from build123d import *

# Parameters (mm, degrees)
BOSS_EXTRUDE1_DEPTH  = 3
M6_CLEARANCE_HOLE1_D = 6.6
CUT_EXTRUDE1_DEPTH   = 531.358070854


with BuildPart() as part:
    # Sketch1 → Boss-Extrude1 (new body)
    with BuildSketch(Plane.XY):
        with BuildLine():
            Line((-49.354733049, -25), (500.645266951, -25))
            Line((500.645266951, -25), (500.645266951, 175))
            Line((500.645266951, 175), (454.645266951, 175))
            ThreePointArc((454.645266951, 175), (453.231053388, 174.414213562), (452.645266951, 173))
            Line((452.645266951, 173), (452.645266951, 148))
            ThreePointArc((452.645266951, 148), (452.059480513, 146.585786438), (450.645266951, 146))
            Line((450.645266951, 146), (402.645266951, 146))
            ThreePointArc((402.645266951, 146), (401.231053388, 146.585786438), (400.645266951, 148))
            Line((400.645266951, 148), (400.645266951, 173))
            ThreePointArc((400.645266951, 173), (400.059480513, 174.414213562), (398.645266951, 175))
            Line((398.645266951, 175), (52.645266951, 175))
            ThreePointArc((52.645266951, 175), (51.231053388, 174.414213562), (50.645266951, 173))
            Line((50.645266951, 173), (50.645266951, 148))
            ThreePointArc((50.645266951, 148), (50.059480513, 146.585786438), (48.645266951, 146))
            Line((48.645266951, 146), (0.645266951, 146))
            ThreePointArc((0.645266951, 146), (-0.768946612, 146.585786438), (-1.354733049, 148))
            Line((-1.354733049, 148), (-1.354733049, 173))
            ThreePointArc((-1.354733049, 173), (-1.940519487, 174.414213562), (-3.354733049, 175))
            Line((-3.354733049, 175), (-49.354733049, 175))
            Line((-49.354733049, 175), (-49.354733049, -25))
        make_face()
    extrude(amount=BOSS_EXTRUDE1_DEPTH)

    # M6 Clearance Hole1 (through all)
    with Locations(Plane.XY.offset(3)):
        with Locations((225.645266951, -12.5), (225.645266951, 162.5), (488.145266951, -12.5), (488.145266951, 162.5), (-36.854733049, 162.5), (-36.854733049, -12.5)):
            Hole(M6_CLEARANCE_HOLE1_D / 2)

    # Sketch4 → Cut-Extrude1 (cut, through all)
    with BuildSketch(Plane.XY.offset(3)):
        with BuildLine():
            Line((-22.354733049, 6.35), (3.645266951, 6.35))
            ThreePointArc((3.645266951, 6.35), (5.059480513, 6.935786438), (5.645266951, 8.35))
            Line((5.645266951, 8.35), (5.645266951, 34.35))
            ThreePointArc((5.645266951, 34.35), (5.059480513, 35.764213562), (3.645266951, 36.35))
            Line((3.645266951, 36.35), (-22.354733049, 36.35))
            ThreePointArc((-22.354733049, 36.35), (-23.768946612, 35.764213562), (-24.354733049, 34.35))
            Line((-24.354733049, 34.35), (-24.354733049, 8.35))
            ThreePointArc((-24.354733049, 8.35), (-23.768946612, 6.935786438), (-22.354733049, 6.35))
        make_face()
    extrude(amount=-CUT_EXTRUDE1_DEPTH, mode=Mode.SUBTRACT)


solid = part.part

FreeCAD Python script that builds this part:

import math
import FreeCAD as App
import Part
import Sketcher

V = App.Vector
Q = App.Units.Quantity

doc = App.newDocument("Part")
body = doc.addObject("PartDesign::Body", "Body")

# Sketch on XY plane
sketch1 = body.newObject("Sketcher::SketchObject", "Sketch")
sketch1.AttachmentSupport = (doc.getObject("XY_Plane"), [""])
sketch1.MapMode = "FlatFace"
sketch1.addGeometry([
    Part.LineSegment(V(-49.354733, -25, 0), V(500.645267, -25, 0)),  # 0
    Part.LineSegment(V(500.645267, -25, 0), V(500.645267, 175, 0)),  # 1
    Part.LineSegment(V(500.645267, 175, 0), V(454.645267, 175, 0)),  # 2
    Part.ArcOfCircle(Part.Circle(V(454.645267, 173, 0), V(0, 0, 1), 2), math.radians(90), math.radians(180)),  # 3
    Part.LineSegment(V(452.645267, 173, 0), V(452.645267, 148, 0)),  # 4
    Part.ArcOfCircle(Part.Circle(V(450.645267, 148, 0), V(0, 0, 1), 2), math.radians(-90), math.radians(0)),  # 5
    Part.LineSegment(V(450.645267, 146, 0), V(402.645267, 146, 0)),  # 6
    Part.ArcOfCircle(Part.Circle(V(402.645267, 148, 0), V(0, 0, 1), 2), math.radians(180), math.radians(270)),  # 7
    Part.LineSegment(V(400.645267, 148, 0), V(400.645267, 173, 0)),  # 8
    Part.ArcOfCircle(Part.Circle(V(398.645267, 173, 0), V(0, 0, 1), 2), math.radians(0), math.radians(90)),  # 9
    Part.LineSegment(V(398.645267, 175, 0), V(52.645267, 175, 0)),  # 10
    Part.ArcOfCircle(Part.Circle(V(52.645267, 173, 0), V(0, 0, 1), 2), math.radians(90), math.radians(180)),  # 11
    Part.LineSegment(V(50.645267, 173, 0), V(50.645267, 148, 0)),  # 12
    Part.ArcOfCircle(Part.Circle(V(48.645267, 148, 0), V(0, 0, 1), 2), math.radians(-90), math.radians(0)),  # 13
    Part.LineSegment(V(48.645267, 146, 0), V(0.645267, 146, 0)),  # 14
    Part.ArcOfCircle(Part.Circle(V(0.645267, 148, 0), V(0, 0, 1), 2), math.radians(180), math.radians(270)),  # 15
    Part.LineSegment(V(-1.354733, 148, 0), V(-1.354733, 173, 0)),  # 16
    Part.ArcOfCircle(Part.Circle(V(-3.354733, 173, 0), V(0, 0, 1), 2), math.radians(0), math.radians(90)),  # 17
    Part.LineSegment(V(-3.354733, 175, 0), V(-49.354733, 175, 0)),  # 18
    Part.LineSegment(V(-49.354733, 175, 0), V(-49.354733, -25, 0)),  # 19
], False)
sketch1.addConstraint([
    Sketcher.Constraint("Coincident", 0, 2, 1, 1),
    Sketcher.Constraint("Coincident", 1, 2, 2, 1),
    Sketcher.Constraint("Tangent", 2, 2, 3, 1),
    Sketcher.Constraint("Tangent", 3, 2, 4, 1),
    Sketcher.Constraint("Tangent", 4, 2, 5, 2),
    Sketcher.Constraint("Tangent", 5, 1, 6, 1),
    Sketcher.Constraint("Tangent", 6, 2, 7, 2),
    Sketcher.Constraint("Tangent", 7, 1, 8, 1),
    Sketcher.Constraint("Tangent", 8, 2, 9, 1),
    Sketcher.Constraint("Tangent", 9, 2, 10, 1),
    Sketcher.Constraint("Tangent", 10, 2, 11, 1),
    Sketcher.Constraint("Tangent", 11, 2, 12, 1),
    Sketcher.Constraint("Tangent", 12, 2, 13, 2),
    Sketcher.Constraint("Tangent", 13, 1, 14, 1),
    Sketcher.Constraint("Tangent", 14, 2, 15, 2),
    Sketcher.Constraint("Tangent", 15, 1, 16, 1),
    Sketcher.Constraint("Tangent", 16, 2, 17, 1),
    Sketcher.Constraint("Tangent", 17, 2, 18, 1),
    Sketcher.Constraint("Coincident", 18, 2, 19, 1),
    Sketcher.Constraint("Coincident", 19, 2, 0, 1),
    Sketcher.Constraint("Horizontal", 0),
    Sketcher.Constraint("Vertical", 1),
    Sketcher.Constraint("Horizontal", 2),
    Sketcher.Constraint("Vertical", 4),
    Sketcher.Constraint("Horizontal", 6),
    Sketcher.Constraint("Vertical", 8),
    Sketcher.Constraint("Horizontal", 10),
    Sketcher.Constraint("Vertical", 12),
    Sketcher.Constraint("Horizontal", 14),
    Sketcher.Constraint("Vertical", 16),
    Sketcher.Constraint("Horizontal", 18),
    Sketcher.Constraint("Vertical", 19),
    Sketcher.Constraint("Equal", 3, 5),
    Sketcher.Constraint("Equal", 5, 7),
    Sketcher.Constraint("Equal", 7, 9),
    Sketcher.Constraint("Equal", 9, 11),
    Sketcher.Constraint("Equal", 11, 13),
    Sketcher.Constraint("Equal", 13, 15),
    Sketcher.Constraint("Equal", 15, 17),
    Sketcher.Constraint("Horizontal", 3, 3, 9, 3),
    Sketcher.Constraint("Horizontal", 7, 3, 13, 3),
    Sketcher.Constraint("Horizontal", 11, 3, 17, 3),
    Sketcher.Constraint("Equal", 6, 14),
    Sketcher.Constraint("Equal", 2, 18),
    Sketcher.Constraint("Radius", 3, Q("2 mm")),
    Sketcher.Constraint("DistanceX", 0, 1, 0, 2, Q("550 mm")),
    Sketcher.Constraint("DistanceX", 2, 2, 2, 1, Q("46 mm")),
    Sketcher.Constraint("DistanceX", 6, 2, 6, 1, Q("48 mm")),
    Sketcher.Constraint("DistanceY", 1, 1, 1, 2, Q("200 mm")),
    Sketcher.Constraint("DistanceY", 4, 2, 4, 1, Q("25 mm")),
    Sketcher.Constraint("DistanceY", -1, 1, 3, 3, Q("173 mm")),
    Sketcher.Constraint("DistanceX", -1, 1, 3, 3, Q("454.645267 mm")),
])
pad1 = body.newObject("PartDesign::Pad", "Pad")
pad1.Profile = sketch1
pad1.Length = 3

# Sketch on XY plane
sketch2 = body.newObject("Sketcher::SketchObject", "Sketch001")
sketch2.AttachmentSupport = (doc.getObject("XY_Plane"), [""])
sketch2.MapMode = "FlatFace"
sketch2.AttachmentOffset = App.Placement(V(0, 0, 3), App.Rotation())
sketch2.addGeometry([
    Part.Circle(V(225.645267, -12.5, 0), V(0, 0, 1), 3.3),  # 0
    Part.Circle(V(225.645267, 162.5, 0), V(0, 0, 1), 3.3),  # 1
    Part.Circle(V(488.145267, -12.5, 0), V(0, 0, 1), 3.3),  # 2
    Part.Circle(V(488.145267, 162.5, 0), V(0, 0, 1), 3.3),  # 3
    Part.Circle(V(-36.854733, 162.5, 0), V(0, 0, 1), 3.3),  # 4
    Part.Circle(V(-36.854733, -12.5, 0), V(0, 0, 1), 3.3),  # 5
], False)
sketch2.addConstraint([
    Sketcher.Constraint("Equal", 0, 1),
    Sketcher.Constraint("Equal", 1, 2),
    Sketcher.Constraint("Equal", 2, 3),
    Sketcher.Constraint("Equal", 3, 4),
    Sketcher.Constraint("Equal", 4, 5),
    Sketcher.Constraint("Horizontal", 0, 3, 2, 3),
    Sketcher.Constraint("Horizontal", 1, 3, 3, 3),
    Sketcher.Constraint("Horizontal", 3, 3, 4, 3),
    Sketcher.Constraint("Horizontal", 2, 3, 5, 3),
    Sketcher.Constraint("Vertical", 0, 3, 1, 3),
    Sketcher.Constraint("Vertical", 2, 3, 3, 3),
    Sketcher.Constraint("Vertical", 4, 3, 5, 3),
    Sketcher.Constraint("Diameter", 0, Q("6.6 mm")),
    Sketcher.Constraint("DistanceY", 0, 3, 1, 3, Q("175 mm")),
    Sketcher.Constraint("DistanceX", 4, 3, 3, 3, Q("525 mm")),
    Sketcher.Constraint("DistanceY", 0, 3, -1, 1, Q("12.5 mm")),
    Sketcher.Constraint("DistanceX", 0, 3, 2, 3, Q("262.5 mm")),
    Sketcher.Constraint("DistanceX", -1, 1, 0, 3, Q("225.645267 mm")),
])
doc.recompute()
hole = body.newObject("PartDesign::Hole", "Hole")
hole.Profile = sketch2
hole.ThreadType = "None"
hole.Diameter = 6.6
hole.DepthType = "ThroughAll"

# Sketch on XY plane
sketch3 = body.newObject("Sketcher::SketchObject", "Sketch002")
sketch3.AttachmentSupport = (doc.getObject("XY_Plane"), [""])
sketch3.MapMode = "FlatFace"
sketch3.AttachmentOffset = App.Placement(V(0, 0, 3), App.Rotation())
sketch3.addGeometry([
    Part.LineSegment(V(-22.354733, 6.35, 0), V(3.645267, 6.35, 0)),  # 0
    Part.ArcOfCircle(Part.Circle(V(3.645267, 8.35, 0), V(0, 0, 1), 2), math.radians(-90), math.radians(0)),  # 1
    Part.LineSegment(V(5.645267, 8.35, 0), V(5.645267, 34.35, 0)),  # 2
    Part.ArcOfCircle(Part.Circle(V(3.645267, 34.35, 0), V(0, 0, 1), 2), math.radians(0), math.radians(90)),  # 3
    Part.LineSegment(V(3.645267, 36.35, 0), V(-22.354733, 36.35, 0)),  # 4
    Part.ArcOfCircle(Part.Circle(V(-22.354733, 34.35, 0), V(0, 0, 1), 2), math.radians(90), math.radians(180)),  # 5
    Part.LineSegment(V(-24.354733, 34.35, 0), V(-24.354733, 8.35, 0)),  # 6
    Part.ArcOfCircle(Part.Circle(V(-22.354733, 8.35, 0), V(0, 0, 1), 2), math.radians(180), math.radians(270)),  # 7
], False)
sketch3.addConstraint([
    Sketcher.Constraint("Tangent", 0, 2, 1, 1),
    Sketcher.Constraint("Tangent", 1, 2, 2, 1),
    Sketcher.Constraint("Tangent", 2, 2, 3, 1),
    Sketcher.Constraint("Tangent", 3, 2, 4, 1),
    Sketcher.Constraint("Tangent", 4, 2, 5, 1),
    Sketcher.Constraint("Tangent", 5, 2, 6, 1),
    Sketcher.Constraint("Tangent", 6, 2, 7, 1),
    Sketcher.Constraint("Tangent", 7, 2, 0, 1),
    Sketcher.Constraint("Horizontal", 0),
    Sketcher.Constraint("Vertical", 2),
    Sketcher.Constraint("Horizontal", 4),
    Sketcher.Constraint("Vertical", 6),
    Sketcher.Constraint("Equal", 1, 3),
    Sketcher.Constraint("Equal", 3, 5),
    Sketcher.Constraint("Equal", 5, 7),
    Sketcher.Constraint("Equal", 4, 2),
    Sketcher.Constraint("Radius", 1, Q("2 mm")),
    Sketcher.Constraint("DistanceX", 0, 1, 0, 2, Q("26 mm")),
    Sketcher.Constraint("DistanceY", -1, 1, 1, 3, Q("8.35 mm")),
    Sketcher.Constraint("DistanceX", -1, 1, 1, 3, Q("3.645267 mm")),
])
pocket1 = body.newObject("PartDesign::Pocket", "Pocket")
pocket1.Profile = sketch3
pocket1.Type = "ThroughAll"

doc.recompute()
